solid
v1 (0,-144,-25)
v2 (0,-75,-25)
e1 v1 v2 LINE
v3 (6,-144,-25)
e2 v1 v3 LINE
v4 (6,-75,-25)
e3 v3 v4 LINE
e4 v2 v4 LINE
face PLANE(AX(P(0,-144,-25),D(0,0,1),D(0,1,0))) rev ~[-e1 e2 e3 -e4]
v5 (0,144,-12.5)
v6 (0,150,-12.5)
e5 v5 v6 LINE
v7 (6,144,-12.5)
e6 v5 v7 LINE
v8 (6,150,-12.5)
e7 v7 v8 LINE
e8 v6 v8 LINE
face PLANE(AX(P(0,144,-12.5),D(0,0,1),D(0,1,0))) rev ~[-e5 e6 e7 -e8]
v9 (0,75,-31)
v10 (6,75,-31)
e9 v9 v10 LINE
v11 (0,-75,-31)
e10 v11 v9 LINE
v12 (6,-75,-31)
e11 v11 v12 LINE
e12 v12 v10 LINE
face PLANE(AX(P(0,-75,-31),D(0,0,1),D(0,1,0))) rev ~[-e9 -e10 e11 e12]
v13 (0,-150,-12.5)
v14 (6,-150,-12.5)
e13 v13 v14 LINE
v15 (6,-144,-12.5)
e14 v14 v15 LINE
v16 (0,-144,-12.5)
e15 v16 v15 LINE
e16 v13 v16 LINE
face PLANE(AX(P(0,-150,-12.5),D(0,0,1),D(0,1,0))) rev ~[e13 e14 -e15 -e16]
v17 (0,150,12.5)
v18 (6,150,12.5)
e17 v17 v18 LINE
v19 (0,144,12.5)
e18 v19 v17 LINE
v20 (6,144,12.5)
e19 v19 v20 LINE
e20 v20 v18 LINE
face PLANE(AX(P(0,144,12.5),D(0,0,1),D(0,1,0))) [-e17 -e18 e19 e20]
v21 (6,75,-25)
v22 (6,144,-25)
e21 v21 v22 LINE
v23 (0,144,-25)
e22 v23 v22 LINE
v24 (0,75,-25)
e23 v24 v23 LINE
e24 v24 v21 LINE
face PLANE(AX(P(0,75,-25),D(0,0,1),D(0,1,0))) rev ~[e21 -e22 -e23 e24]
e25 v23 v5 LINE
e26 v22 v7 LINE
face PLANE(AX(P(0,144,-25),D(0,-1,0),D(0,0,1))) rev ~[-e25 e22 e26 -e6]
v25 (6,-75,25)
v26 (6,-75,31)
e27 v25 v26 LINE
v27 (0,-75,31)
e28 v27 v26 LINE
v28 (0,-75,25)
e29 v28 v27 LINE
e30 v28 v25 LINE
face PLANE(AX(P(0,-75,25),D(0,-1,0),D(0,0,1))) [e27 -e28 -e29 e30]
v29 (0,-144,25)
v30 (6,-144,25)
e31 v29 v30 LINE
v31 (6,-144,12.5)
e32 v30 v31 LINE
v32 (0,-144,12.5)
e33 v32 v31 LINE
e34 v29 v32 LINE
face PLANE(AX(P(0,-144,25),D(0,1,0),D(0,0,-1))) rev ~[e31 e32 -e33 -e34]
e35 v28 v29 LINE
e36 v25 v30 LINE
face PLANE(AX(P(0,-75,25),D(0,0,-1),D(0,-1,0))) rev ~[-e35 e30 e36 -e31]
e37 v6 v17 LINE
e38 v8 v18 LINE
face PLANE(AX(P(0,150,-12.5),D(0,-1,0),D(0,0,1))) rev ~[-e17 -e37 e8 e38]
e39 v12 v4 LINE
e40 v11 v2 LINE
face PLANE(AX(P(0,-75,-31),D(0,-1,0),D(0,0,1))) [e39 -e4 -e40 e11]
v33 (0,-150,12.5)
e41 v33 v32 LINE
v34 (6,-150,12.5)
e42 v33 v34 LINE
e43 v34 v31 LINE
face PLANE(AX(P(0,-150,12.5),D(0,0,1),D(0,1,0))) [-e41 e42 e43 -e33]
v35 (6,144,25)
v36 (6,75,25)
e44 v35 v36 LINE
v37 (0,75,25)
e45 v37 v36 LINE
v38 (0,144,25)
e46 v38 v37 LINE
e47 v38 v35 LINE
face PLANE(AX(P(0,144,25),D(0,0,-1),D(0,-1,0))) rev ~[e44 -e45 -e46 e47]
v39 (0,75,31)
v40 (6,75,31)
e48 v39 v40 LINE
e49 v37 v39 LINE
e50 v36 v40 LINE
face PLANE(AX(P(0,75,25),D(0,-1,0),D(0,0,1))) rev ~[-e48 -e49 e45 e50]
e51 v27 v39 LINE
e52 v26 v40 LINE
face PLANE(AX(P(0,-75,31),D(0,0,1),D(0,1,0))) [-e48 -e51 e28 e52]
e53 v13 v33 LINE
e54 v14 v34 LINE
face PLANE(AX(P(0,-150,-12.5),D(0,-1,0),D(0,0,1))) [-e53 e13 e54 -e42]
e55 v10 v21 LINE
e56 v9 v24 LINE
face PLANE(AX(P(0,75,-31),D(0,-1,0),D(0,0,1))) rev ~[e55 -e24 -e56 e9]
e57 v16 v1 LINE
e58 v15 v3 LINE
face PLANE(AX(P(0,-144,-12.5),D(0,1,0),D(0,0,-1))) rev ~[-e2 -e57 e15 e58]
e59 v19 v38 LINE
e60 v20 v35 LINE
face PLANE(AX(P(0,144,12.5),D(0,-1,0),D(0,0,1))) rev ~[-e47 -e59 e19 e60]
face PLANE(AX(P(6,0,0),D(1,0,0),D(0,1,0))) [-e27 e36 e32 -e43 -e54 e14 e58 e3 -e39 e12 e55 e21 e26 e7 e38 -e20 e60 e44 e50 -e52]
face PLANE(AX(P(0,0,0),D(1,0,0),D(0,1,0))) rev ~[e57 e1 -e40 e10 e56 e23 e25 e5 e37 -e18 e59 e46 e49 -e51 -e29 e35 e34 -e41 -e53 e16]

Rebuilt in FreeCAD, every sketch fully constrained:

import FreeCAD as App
import Part
import Sketcher
from FreeCAD import Vector
Q = App.Units.Quantity

doc = App.newDocument("Part")
params = doc.addObject("Spreadsheet::Sheet", "Params")
for row, (alias, value) in enumerate([
    ("sketch1_width", "69 mm"),
    ("sketch1_width2", "6 mm"),
    ("sketch1_width3", "150 mm"),
    ("sketch1_height", "25 mm"),
    ("sketch1_height2", "12.5 mm"),
    ("pad1_length", "6 mm"),
], start=1):
    params.set(f"A{row}", alias)
    params.set(f"B{row}", "=" + value)
    params.setAlias(f"B{row}", alias)

body = doc.addObject("PartDesign::Body", "Body")

# Sketch on YZ plane
sketch1 = doc.addObject("Sketcher::SketchObject", "Sketch")
body.addObject(sketch1)
sketch1.AttachmentSupport = (doc.YZ_Plane, [""])
sketch1.MapMode = "FlatFace"
sketch1.addGeometry(Part.LineSegment(Vector(-75, 25, 0), Vector(-144, 25, 0)), False)
sketch1.addGeometry(Part.LineSegment(Vector(-144, 25, 0), Vector(-144, 12.5, 0)), False)
sketch1.addGeometry(Part.LineSegment(Vector(-144, 12.5, 0), Vector(-150, 12.5, 0)), False)
sketch1.addGeometry(Part.LineSegment(Vector(-150, 12.5, 0), Vector(-150, -12.5, 0)), False)
sketch1.addGeometry(Part.LineSegment(Vector(-150, -12.5, 0), Vector(-144, -12.5, 0)), False)
sketch1.addGeometry(Part.LineSegment(Vector(-144, -12.5, 0), Vector(-144, -25, 0)), False)
sketch1.addGeometry(Part.LineSegment(Vector(-144, -25, 0), Vector(-75, -25, 0)), False)
sketch1.addGeometry(Part.LineSegment(Vector(-75, -25, 0), Vector(-75, -31, 0)), False)
sketch1.addGeometry(Part.LineSegment(Vector(-75, -31, 0), Vector(75, -31, 0)), False)
sketch1.addGeometry(Part.LineSegment(Vector(75, -31, 0), Vector(75, -25, 0)), False)
sketch1.addGeometry(Part.LineSegment(Vector(75, -25, 0), Vector(144, -25, 0)), False)
sketch1.addGeometry(Part.LineSegment(Vector(144, -25, 0), Vector(144, -12.5, 0)), False)
sketch1.addGeometry(Part.LineSegment(Vector(144, -12.5, 0), Vector(150, -12.5, 0)), False)
sketch1.addGeometry(Part.LineSegment(Vector(150, -12.5, 0), Vector(150, 12.5, 0)), False)
sketch1.addGeometry(Part.LineSegment(Vector(150, 12.5, 0), Vector(144, 12.5, 0)), False)
sketch1.addGeometry(Part.LineSegment(Vector(144, 12.5, 0), Vector(144, 25, 0)), False)
sketch1.addGeometry(Part.LineSegment(Vector(144, 25, 0), Vector(75, 25, 0)), False)
sketch1.addGeometry(Part.LineSegment(Vector(75, 25, 0), Vector(75, 31, 0)), False)
sketch1.addGeometry(Part.LineSegment(Vector(75, 31, 0), Vector(-75, 31, 0)), False)
sketch1.addGeometry(Part.LineSegment(Vector(-75, 31, 0), Vector(-75, 25, 0)), False)
sketch1.addConstraint(Sketcher.Constraint("Coincident", 0, 2, 1, 1))
sketch1.addConstraint(Sketcher.Constraint("Coincident", 1, 2, 2, 1))
sketch1.addConstraint(Sketcher.Constraint("Coincident", 2, 2, 3, 1))
sketch1.addConstraint(Sketcher.Constraint("Coincident", 3, 2, 4, 1))
sketch1.addConstraint(Sketcher.Constraint("Coincident", 4, 2, 5, 1))
sketch1.addConstraint(Sketcher.Constraint("Coincident", 5, 2, 6, 1))
sketch1.addConstraint(Sketcher.Constraint("Coincident", 6, 2, 7, 1))
sketch1.addConstraint(Sketcher.Constraint("Coincident", 7, 2, 8, 1))
sketch1.addConstraint(Sketcher.Constraint("Coincident", 8, 2, 9, 1))
sketch1.addConstraint(Sketcher.Constraint("Coincident", 9, 2, 10, 1))
sketch1.addConstraint(Sketcher.Constraint("Coincident", 10, 2, 11, 1))
sketch1.addConstraint(Sketcher.Constraint("Coincident", 11, 2, 12, 1))
sketch1.addConstraint(Sketcher.Constraint("Coincident", 12, 2, 13, 1))
sketch1.addConstraint(Sketcher.Constraint("Coincident", 13, 2, 14, 1))
sketch1.addConstraint(Sketcher.Constraint("Coincident", 14, 2, 15, 1))
sketch1.addConstraint(Sketcher.Constraint("Coincident", 15, 2, 16, 1))
sketch1.addConstraint(Sketcher.Constraint("Coincident", 16, 2, 17, 1))
sketch1.addConstraint(Sketcher.Constraint("Coincident", 17, 2, 18, 1))
sketch1.addConstraint(Sketcher.Constraint("Coincident", 18, 2, 19, 1))
sketch1.addConstraint(Sketcher.Constraint("Coincident", 19, 2, 0, 1))
sketch1.addConstraint(Sketcher.Constraint("Horizontal", 0))
sketch1.addConstraint(Sketcher.Constraint("Vertical", 1))
sketch1.addConstraint(Sketcher.Constraint("Horizontal", 2))
sketch1.addConstraint(Sketcher.Constraint("Vertical", 3))
sketch1.addConstraint(Sketcher.Constraint("Horizontal", 4))
sketch1.addConstraint(Sketcher.Constraint("Vertical", 5))
sketch1.addConstraint(Sketcher.Constraint("Horizontal", 6))
sketch1.addConstraint(Sketcher.Constraint("Vertical", 7))
sketch1.addConstraint(Sketcher.Constraint("Horizontal", 8))
sketch1.addConstraint(Sketcher.Constraint("Vertical", 9))
sketch1.addConstraint(Sketcher.Constraint("Horizontal", 10))
sketch1.addConstraint(Sketcher.Constraint("Vertical", 11))
sketch1.addConstraint(Sketcher.Constraint("Horizontal", 12))
sketch1.addConstraint(Sketcher.Constraint("Vertical", 13))
sketch1.addConstraint(Sketcher.Constraint("Horizontal", 14))
sketch1.addConstraint(Sketcher.Constraint("Vertical", 15))
sketch1.addConstraint(Sketcher.Constraint("Horizontal", 16))
sketch1.addConstraint(Sketcher.Constraint("Vertical", 17))
sketch1.addConstraint(Sketcher.Constraint("Horizontal", 18))
sketch1.addConstraint(Sketcher.Constraint("Vertical", 19))
sketch1.addConstraint(Sketcher.Constraint("Symmetric", 0, 2, 10, 2, -1, 1))
sketch1.addConstraint(Sketcher.Constraint("Symmetric", 2, 2, 12, 2, -1, 1))
sketch1.addConstraint(Sketcher.Constraint("Symmetric", 4, 2, 14, 2, -1, 1))
sketch1.addConstraint(Sketcher.Constraint("Symmetric", 6, 2, 16, 2, -1, 1))
sketch1.addConstraint(Sketcher.Constraint("Symmetric", 8, 2, 18, 2, -1, 1))
sketch1.addConstraint(Sketcher.Constraint("Symmetric", 6, 2, 9, 2, -2))
sketch1.addConstraint(Sketcher.Constraint("Symmetric", 4, 2, 11, 2, -2))
sketch1.addConstraint(Sketcher.Constraint("Equal", 14, 7))
sketch1.addConstraint(Sketcher.Constraint("DistanceX", 0, 2, 0, 1, Q("69 mm")))
sketch1.addConstraint(Sketcher.Constraint("DistanceX", 2, 2, 2, 1, Q("6 mm")))
sketch1.addConstraint(Sketcher.Constraint("DistanceX", 8, 1, 8, 2, Q("150 mm")))
sketch1.addConstraint(Sketcher.Constraint("DistanceY", 3, 2, 3, 1, Q("25 mm")))
sketch1.addConstraint(Sketcher.Constraint("DistanceY", 1, 2, 1, 1, Q("12.5 mm")))
sketch1.setExpression("Constraints[48]", "Params.sketch1_width")
sketch1.setExpression("Constraints[49]", "Params.sketch1_width2")
sketch1.setExpression("Constraints[50]", "Params.sketch1_width3")
sketch1.setExpression("Constraints[51]", "Params.sketch1_height")
sketch1.setExpression("Constraints[52]", "Params.sketch1_height2")
pad1 = doc.addObject("PartDesign::Pad", "Pad")
body.addObject(pad1)
pad1.Profile = sketch1
pad1.setExpression("Length", "Params.pad1_length")

doc.recompute()
